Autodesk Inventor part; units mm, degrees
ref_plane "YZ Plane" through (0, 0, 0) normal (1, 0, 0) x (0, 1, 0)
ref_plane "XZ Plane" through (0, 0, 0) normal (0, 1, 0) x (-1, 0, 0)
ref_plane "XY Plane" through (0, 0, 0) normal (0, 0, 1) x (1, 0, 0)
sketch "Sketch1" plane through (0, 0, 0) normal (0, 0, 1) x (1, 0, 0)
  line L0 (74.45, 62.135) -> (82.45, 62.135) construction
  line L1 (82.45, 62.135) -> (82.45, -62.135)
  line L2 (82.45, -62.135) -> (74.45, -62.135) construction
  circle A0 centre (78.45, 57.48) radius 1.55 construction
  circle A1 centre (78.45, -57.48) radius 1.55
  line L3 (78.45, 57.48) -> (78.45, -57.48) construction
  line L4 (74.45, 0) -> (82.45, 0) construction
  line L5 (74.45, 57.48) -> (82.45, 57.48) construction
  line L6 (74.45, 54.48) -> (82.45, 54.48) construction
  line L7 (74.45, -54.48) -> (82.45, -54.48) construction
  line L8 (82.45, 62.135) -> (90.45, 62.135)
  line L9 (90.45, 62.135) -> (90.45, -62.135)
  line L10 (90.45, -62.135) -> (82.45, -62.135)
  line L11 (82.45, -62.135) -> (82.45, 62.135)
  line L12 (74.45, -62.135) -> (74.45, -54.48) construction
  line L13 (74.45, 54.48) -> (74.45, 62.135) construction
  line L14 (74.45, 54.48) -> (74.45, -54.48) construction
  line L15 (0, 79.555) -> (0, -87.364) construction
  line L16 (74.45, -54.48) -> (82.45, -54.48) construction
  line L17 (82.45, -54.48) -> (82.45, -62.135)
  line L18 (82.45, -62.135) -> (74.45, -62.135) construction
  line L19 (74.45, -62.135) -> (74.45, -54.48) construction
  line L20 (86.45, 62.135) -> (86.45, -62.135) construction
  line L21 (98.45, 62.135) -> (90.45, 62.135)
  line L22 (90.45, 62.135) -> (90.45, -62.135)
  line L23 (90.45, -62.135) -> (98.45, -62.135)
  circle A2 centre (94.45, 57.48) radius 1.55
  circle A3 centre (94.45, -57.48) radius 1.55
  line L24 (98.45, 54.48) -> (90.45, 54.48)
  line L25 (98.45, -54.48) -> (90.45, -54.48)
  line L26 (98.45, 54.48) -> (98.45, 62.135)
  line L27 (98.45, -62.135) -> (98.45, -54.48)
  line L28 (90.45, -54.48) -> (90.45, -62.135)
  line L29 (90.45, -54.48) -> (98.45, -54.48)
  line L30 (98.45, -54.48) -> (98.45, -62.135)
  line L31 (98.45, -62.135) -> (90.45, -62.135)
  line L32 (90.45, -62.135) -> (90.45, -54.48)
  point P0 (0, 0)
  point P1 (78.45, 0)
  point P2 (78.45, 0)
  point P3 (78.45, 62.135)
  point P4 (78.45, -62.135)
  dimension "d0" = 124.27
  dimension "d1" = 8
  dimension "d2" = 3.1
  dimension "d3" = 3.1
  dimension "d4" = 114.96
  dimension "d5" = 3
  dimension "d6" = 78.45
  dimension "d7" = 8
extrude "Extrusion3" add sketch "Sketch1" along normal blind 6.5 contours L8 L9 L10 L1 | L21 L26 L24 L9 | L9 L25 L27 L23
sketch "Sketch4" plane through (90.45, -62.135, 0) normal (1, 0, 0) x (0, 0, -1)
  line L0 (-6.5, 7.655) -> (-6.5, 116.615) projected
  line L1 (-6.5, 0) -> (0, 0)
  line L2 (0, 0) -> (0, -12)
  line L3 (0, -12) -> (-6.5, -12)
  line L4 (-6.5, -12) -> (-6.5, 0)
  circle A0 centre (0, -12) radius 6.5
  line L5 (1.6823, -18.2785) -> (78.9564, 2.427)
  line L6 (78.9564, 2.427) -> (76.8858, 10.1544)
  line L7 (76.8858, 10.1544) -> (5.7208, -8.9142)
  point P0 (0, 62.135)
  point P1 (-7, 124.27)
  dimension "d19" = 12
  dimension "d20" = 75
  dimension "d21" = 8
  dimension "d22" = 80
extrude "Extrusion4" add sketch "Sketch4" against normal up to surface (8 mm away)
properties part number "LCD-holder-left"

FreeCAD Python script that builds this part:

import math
import FreeCAD as App
import Part
import Sketcher

V = App.Vector
Q = App.Units.Quantity

doc = App.newDocument("Part")
body = doc.addObject("PartDesign::Body", "Body")

sketch1 = body.newObject("Sketcher::SketchObject", "Sketch")
sketch1.AttachmentSupport = (doc.getObject("XY_Plane"), [""])
sketch1.MapMode = "FlatFace"
sketch1.addGeometry([
    Part.LineSegment(V(82.45, 62.135, 0), V(82.45, -62.135, 0)),
    Part.LineSegment(V(82.45, -62.135, 0), V(98.45, -62.135, 0)),
    Part.LineSegment(V(98.45, -62.135, 0), V(98.45, -54.48, 0)),
    Part.LineSegment(V(98.45, -54.48, 0), V(90.45, -54.48, 0)),
    Part.LineSegment(V(90.45, -54.48, 0), V(90.45, 54.48, 0)),
    Part.LineSegment(V(90.45, 54.48, 0), V(98.45, 54.48, 0)),
    Part.LineSegment(V(98.45, 54.48, 0), V(98.45, 62.135, 0)),
    Part.LineSegment(V(98.45, 62.135, 0), V(82.45, 62.135, 0)),
    Part.Circle(V(94.45, 57.48, 0), V(0, 0, 1), 1.55),
    Part.Circle(V(94.45, -57.48, 0), V(0, 0, 1), 1.55),
], False)
sketch1.addConstraint([
    Sketcher.Constraint("Coincident", 0, 2, 1, 1),
    Sketcher.Constraint("Coincident", 1, 2, 2, 1),
    Sketcher.Constraint("Coincident", 2, 2, 3, 1),
    Sketcher.Constraint("Coincident", 3, 2, 4, 1),
    Sketcher.Constraint("Coincident", 4, 2, 5, 1),
    Sketcher.Constraint("Coincident", 5, 2, 6, 1),
    Sketcher.Constraint("Coincident", 6, 2, 7, 1),
    Sketcher.Constraint("Coincident", 7, 2, 0, 1),
    Sketcher.Constraint("Vertical", 0),
    Sketcher.Constraint("Horizontal", 1),
    Sketcher.Constraint("Vertical", 2),
    Sketcher.Constraint("Horizontal", 3),
    Sketcher.Constraint("Vertical", 4),
    Sketcher.Constraint("Horizontal", 5),
    Sketcher.Constraint("Vertical", 6),
    Sketcher.Constraint("Horizontal", 7),
    Sketcher.Constraint("Equal", 8, 9),
    Sketcher.Constraint("Symmetric", 8, 3, 9, 3, -1),
    Sketcher.Constraint("Symmetric", 2, 2, 5, 2, -1),
    Sketcher.Constraint("Equal", 2, 6),
    Sketcher.Constraint("Diameter", 8, 3.1),
    Sketcher.Constraint("DistanceX", 3, 2, 3, 1, 8.0),
    Sketcher.Constraint("DistanceY", 9, 3, 2, 2, 3.0),
    Sketcher.Constraint("DistanceX", 0, 2, 3, 2, 8.0),
    Sketcher.Constraint("DistanceY", 0, 2, 0, 1, 124.27),
    Sketcher.Constraint("DistanceY", 9, 3, 8, 3, 114.96),
    Sketcher.Constraint("DistanceX", 0, 2, 9, 3, 12.0),
    Sketcher.Constraint("DistanceX", -1, 1, 8, 3, 94.45),
])
pad1 = body.newObject("PartDesign::Pad", "Pad")
pad1.Profile = sketch1
pad1.Length = 6.5

sketch2 = body.newObject("Sketcher::SketchObject", "Sketch001")
sketch2.AttachmentSupport = (doc.getObject("YZ_Plane"), [""])
sketch2.MapMode = "FlatFace"
sketch2.AttachmentOffset = App.Placement(V(0, 0, 90.45), App.Rotation())
sketch2.addGeometry([
    Part.LineSegment(V(-62.135, 0, 0), V(-62.135, 6.5, 0)),
    Part.LineSegment(V(-62.135, 6.5, 0), V(-74.135, 6.5, 0)),
    Part.ArcOfCircle(Part.Circle(V(-74.135, 0, 0), V(0, 0, 1), 6.5), math.radians(90), math.radians(194.999838)),
    Part.LineSegment(V(-80.4135, -1.6823, 0), V(-59.708, -78.9564, 0)),
    Part.LineSegment(V(-59.708, -78.9564, 0), V(-51.9806, -76.8858, 0)),
    Part.LineSegment(V(-51.9806, -76.8858, 0), V(-71.0492, -5.7208, 0)),
    Part.ArcOfCircle(Part.Circle(V(-74.135, 0, 0), V(0, 0, 1), 6.5), math.radians(-61.657573), math.radians(0)),
    Part.LineSegment(V(-67.635, 0, 0), V(-62.135, 0, 0)),
], False)
sketch2.addConstraint([
    Sketcher.Constraint("Coincident", 0, 2, 1, 1),
    Sketcher.Constraint("Tangent", 1, 2, 2, 1),
    Sketcher.Constraint("Tangent", 2, 2, 3, 1),
    Sketcher.Constraint("Coincident", 3, 2, 4, 1),
    Sketcher.Constraint("Coincident", 4, 2, 5, 1),
    Sketcher.Constraint("Coincident", 5, 2, 6, 1),
    Sketcher.Constraint("Coincident", 6, 2, 7, 1),
    Sketcher.Constraint("Coincident", 7, 2, 0, 1),
    Sketcher.Constraint("Vertical", 0),
    Sketcher.Constraint("Horizontal", 1),
    Sketcher.Constraint("Horizontal", 7),
    Sketcher.Constraint("Coincident", 6, 3, 2, 3),
    Sketcher.Constraint("Equal", 2, 6),
    Sketcher.Constraint("PointOnObject", 2, 3, -1),
    Sketcher.Constraint("PointOnObject", 6, 2, -1),
    Sketcher.Constraint("Perpendicular", 3, 4),
    Sketcher.Constraint("Perpendicular", 4, 5),
    Sketcher.Constraint("DistanceX", 1, 2, 1, 1, 12.0),
    Sketcher.Constraint("Angle", 3, Q("-75 deg")),
    Sketcher.Constraint("Distance", 3, 80.0),
    Sketcher.Constraint("Distance", 4, 8.0),
    Sketcher.Constraint("Radius", 2, 6.5),
    Sketcher.Constraint("DistanceX", 2, 3, -1, 1, 74.135),
])
pad2 = body.newObject("PartDesign::Pad", "Pad001")
pad2.Profile = sketch2
pad2.Length = 8
pad2.Reversed = True

doc.recompute()
